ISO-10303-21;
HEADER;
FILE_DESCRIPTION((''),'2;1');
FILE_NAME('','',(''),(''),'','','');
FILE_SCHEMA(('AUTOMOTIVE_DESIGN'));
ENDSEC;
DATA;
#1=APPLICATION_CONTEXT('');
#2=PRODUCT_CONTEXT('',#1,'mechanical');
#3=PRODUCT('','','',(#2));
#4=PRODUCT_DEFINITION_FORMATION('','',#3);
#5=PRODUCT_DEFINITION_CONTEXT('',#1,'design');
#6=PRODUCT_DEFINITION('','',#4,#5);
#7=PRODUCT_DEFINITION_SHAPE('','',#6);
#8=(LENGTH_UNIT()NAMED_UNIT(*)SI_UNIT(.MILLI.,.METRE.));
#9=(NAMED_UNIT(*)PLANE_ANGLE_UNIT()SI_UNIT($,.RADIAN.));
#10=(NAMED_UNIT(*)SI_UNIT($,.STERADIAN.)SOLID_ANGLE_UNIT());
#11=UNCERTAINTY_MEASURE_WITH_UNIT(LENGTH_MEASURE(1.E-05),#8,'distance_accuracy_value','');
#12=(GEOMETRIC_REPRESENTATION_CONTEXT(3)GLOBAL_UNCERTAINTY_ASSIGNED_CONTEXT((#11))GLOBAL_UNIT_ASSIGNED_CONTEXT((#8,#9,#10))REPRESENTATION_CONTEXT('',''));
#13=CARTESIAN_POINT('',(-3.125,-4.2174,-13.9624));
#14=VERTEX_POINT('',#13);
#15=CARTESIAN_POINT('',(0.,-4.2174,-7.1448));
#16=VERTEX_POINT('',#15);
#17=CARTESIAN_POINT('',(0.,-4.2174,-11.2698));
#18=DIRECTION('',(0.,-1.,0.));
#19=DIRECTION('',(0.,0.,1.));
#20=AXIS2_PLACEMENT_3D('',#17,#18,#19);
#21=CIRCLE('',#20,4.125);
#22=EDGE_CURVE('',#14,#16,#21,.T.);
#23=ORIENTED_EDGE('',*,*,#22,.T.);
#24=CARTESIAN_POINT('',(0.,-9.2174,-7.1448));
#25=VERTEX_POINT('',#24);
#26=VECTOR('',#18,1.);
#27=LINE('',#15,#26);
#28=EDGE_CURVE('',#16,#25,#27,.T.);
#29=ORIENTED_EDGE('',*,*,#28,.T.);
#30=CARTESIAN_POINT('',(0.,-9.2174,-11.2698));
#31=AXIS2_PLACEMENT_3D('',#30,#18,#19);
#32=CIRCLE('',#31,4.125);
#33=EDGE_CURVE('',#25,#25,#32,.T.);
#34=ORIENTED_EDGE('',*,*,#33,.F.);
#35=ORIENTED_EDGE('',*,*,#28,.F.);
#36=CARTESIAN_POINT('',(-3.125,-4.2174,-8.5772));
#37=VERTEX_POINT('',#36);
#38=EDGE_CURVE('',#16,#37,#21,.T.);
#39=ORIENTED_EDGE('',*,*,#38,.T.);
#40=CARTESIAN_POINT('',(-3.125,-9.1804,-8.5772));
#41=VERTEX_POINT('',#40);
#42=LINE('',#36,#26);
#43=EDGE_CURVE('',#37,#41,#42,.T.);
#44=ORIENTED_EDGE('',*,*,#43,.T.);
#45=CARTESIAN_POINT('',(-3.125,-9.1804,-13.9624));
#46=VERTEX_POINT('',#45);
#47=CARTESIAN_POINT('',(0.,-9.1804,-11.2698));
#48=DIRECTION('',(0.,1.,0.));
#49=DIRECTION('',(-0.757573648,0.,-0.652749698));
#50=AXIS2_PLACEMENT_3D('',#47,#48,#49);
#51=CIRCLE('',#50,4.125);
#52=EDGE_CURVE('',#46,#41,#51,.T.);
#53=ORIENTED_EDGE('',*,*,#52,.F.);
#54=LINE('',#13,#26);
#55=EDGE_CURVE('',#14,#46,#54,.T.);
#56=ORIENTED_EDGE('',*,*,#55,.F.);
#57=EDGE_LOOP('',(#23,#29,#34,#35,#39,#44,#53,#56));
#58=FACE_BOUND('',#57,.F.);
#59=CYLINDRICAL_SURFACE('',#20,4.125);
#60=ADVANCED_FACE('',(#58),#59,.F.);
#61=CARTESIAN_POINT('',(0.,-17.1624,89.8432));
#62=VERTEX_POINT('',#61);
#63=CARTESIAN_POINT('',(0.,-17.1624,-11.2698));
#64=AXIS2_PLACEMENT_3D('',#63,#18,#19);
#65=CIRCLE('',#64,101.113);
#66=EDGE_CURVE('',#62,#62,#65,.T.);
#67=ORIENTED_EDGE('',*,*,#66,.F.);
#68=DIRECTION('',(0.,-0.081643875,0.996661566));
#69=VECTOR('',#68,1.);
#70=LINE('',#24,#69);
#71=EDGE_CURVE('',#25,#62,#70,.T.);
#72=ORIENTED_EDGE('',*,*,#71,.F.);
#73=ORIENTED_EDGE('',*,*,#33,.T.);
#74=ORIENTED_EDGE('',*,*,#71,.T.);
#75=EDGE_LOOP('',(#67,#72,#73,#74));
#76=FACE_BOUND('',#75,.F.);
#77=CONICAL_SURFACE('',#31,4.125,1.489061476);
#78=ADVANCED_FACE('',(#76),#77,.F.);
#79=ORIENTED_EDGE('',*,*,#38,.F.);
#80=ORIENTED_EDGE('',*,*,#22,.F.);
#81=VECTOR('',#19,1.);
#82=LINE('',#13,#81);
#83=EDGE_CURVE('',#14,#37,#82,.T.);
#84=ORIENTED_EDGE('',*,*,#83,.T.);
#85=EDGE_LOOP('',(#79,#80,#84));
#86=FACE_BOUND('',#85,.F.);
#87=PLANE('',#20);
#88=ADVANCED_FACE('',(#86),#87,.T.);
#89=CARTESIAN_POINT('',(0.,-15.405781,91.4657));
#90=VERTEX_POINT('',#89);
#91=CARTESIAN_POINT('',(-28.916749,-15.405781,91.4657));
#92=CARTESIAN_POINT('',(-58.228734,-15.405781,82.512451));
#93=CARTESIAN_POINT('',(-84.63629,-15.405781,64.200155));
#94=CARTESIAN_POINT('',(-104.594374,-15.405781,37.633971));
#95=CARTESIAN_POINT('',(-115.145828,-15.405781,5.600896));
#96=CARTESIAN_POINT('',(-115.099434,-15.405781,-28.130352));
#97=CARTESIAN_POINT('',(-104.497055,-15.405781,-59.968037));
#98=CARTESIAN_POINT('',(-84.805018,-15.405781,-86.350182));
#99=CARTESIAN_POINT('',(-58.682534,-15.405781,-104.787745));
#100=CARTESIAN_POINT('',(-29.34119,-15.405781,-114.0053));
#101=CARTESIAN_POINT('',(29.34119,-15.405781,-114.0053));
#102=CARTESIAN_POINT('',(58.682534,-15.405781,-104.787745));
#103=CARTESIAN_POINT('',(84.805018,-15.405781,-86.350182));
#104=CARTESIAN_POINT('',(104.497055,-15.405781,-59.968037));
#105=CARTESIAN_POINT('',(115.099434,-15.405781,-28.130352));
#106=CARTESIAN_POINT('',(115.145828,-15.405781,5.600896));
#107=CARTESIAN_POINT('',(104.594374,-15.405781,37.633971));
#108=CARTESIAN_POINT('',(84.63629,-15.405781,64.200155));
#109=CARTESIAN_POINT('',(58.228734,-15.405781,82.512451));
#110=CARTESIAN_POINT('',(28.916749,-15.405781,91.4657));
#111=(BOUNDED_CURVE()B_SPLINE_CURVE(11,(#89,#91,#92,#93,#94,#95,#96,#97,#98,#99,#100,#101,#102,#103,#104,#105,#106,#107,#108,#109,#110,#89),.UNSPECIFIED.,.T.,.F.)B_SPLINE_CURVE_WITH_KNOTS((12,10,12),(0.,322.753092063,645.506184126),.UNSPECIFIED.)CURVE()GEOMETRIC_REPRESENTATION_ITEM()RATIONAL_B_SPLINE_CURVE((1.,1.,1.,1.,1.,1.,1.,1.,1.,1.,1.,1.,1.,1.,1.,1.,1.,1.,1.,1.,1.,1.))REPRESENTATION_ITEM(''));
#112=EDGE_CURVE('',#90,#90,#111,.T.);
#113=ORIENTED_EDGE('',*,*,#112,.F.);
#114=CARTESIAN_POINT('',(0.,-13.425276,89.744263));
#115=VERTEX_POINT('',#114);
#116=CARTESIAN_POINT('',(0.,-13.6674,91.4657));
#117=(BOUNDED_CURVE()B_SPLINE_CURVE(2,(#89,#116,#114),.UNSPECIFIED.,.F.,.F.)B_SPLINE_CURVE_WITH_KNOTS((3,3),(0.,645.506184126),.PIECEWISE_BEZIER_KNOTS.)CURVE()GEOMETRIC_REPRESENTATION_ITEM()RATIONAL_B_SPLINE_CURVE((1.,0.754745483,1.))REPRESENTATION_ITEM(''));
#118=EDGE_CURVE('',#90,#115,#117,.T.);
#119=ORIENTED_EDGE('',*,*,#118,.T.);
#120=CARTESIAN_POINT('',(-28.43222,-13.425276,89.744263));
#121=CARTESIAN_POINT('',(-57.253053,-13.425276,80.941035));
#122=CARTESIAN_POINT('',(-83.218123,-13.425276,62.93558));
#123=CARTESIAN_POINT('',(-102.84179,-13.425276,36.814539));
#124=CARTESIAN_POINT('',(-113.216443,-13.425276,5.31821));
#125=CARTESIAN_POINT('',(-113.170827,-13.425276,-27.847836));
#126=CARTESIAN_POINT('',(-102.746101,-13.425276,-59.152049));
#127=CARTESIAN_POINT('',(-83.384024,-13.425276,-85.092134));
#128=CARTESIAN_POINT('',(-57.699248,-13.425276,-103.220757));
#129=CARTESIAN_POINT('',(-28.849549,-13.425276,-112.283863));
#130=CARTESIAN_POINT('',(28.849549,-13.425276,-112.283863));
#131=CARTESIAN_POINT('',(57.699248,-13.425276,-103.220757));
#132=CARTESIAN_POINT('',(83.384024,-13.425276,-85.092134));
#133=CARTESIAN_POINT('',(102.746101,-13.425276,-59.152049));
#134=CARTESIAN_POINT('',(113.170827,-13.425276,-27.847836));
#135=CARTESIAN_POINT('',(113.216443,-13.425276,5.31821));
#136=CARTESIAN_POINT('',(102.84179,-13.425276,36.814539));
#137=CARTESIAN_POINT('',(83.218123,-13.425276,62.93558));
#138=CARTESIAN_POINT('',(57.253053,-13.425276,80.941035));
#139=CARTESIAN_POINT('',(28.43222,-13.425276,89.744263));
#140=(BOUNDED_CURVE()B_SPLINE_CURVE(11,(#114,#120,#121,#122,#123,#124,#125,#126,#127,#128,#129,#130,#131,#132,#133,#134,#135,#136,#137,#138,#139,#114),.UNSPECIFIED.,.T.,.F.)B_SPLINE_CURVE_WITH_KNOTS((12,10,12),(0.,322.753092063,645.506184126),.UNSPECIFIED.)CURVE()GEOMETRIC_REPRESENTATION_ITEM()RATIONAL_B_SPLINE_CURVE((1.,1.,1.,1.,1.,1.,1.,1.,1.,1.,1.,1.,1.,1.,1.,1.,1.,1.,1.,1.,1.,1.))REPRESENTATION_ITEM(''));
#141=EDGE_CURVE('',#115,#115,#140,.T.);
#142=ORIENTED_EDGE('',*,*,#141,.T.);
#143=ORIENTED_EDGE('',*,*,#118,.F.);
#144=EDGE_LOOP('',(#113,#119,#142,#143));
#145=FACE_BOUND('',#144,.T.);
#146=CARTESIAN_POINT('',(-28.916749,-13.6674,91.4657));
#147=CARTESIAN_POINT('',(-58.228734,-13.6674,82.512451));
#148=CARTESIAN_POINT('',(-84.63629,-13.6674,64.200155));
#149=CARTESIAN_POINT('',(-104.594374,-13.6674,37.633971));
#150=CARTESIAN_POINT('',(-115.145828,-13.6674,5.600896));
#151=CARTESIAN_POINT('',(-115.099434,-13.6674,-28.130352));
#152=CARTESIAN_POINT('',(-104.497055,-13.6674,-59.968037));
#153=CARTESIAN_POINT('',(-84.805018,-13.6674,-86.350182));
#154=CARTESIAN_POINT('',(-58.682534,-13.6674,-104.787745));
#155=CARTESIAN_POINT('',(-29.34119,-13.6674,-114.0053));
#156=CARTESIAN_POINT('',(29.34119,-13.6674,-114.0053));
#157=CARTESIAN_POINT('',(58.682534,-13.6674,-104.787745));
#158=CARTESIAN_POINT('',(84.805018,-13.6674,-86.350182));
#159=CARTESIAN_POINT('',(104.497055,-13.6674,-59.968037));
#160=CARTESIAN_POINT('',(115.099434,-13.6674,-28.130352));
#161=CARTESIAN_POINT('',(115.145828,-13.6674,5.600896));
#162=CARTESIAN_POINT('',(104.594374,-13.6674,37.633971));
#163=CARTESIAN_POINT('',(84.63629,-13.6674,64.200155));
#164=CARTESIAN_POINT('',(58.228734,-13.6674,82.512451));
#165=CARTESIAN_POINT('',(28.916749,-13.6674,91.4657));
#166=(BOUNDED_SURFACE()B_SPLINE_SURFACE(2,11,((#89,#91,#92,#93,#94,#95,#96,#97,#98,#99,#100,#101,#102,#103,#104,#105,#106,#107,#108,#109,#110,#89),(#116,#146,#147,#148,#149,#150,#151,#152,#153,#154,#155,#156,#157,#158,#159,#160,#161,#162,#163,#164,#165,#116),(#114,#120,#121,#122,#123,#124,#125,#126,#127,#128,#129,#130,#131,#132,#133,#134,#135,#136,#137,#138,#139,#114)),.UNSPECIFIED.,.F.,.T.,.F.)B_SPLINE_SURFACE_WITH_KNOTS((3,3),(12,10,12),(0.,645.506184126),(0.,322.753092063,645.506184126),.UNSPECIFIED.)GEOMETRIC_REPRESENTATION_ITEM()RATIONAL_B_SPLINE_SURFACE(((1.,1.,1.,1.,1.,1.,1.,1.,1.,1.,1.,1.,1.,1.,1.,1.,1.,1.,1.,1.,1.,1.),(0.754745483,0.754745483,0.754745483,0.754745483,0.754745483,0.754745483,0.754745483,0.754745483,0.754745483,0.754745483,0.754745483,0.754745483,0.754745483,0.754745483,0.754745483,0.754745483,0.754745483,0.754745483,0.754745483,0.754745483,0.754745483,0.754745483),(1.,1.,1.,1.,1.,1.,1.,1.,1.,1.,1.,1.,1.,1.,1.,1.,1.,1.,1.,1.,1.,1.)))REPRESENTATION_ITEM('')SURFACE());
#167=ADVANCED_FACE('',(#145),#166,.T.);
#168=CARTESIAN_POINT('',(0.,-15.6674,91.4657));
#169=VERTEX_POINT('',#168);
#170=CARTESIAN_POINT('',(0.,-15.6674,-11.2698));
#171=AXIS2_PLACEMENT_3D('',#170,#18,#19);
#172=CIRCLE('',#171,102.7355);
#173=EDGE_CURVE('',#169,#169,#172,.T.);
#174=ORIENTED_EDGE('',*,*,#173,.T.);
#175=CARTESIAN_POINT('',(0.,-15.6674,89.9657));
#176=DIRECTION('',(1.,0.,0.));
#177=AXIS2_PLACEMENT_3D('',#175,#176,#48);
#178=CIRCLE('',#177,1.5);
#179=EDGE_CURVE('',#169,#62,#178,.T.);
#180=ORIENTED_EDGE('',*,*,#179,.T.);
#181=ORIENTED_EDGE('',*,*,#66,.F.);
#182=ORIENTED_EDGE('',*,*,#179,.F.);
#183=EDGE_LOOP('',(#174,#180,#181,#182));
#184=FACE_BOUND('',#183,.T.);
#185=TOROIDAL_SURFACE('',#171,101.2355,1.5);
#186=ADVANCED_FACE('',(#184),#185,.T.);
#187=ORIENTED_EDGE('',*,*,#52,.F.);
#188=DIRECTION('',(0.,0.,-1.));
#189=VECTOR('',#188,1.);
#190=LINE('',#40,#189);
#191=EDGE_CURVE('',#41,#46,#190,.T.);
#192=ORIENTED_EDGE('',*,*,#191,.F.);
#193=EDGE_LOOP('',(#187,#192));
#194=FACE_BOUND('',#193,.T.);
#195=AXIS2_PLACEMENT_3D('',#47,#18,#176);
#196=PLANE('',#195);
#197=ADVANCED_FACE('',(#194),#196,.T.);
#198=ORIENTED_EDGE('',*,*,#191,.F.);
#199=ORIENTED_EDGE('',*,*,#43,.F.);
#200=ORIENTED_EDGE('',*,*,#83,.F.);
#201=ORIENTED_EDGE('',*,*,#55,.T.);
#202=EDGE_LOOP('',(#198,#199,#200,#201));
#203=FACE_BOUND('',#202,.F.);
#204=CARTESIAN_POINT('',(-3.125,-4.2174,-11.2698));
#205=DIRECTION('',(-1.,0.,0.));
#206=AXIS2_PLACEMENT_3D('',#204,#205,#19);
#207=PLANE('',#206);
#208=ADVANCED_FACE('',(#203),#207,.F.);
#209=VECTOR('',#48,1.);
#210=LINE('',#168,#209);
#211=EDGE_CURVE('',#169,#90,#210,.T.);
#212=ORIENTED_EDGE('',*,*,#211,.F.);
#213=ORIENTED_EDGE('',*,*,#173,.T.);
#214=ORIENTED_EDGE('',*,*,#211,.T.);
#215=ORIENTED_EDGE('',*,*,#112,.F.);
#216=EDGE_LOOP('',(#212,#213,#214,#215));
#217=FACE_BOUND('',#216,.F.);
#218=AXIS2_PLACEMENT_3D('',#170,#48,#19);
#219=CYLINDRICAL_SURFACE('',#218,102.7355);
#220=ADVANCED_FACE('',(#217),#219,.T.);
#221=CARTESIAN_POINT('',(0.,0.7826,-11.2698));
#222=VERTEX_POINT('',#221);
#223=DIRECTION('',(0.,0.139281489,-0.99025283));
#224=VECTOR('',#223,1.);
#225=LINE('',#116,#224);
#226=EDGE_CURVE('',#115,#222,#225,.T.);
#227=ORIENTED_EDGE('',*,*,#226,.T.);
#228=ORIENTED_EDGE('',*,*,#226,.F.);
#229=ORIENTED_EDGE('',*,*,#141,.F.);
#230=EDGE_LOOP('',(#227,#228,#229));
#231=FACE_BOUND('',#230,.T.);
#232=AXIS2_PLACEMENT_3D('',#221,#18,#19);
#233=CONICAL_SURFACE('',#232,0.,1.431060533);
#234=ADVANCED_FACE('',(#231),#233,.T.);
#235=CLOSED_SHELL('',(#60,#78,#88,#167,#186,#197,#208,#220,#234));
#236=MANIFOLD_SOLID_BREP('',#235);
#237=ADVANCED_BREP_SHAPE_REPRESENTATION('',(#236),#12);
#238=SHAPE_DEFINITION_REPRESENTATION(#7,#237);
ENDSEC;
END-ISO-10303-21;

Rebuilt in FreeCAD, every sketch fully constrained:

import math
import FreeCAD as App
import Part
import Sketcher

V = App.Vector
Q = App.Units.Quantity


def edges_at(feature, points):
    """Names of the edges that pass closest to the given points."""
    edges = feature.Shape.Edges
    near = lambda p: min(range(len(edges)), key=lambda i: edges[i].distToShape(Part.Vertex(*p))[0])
    return sorted({f"Edge{near(p) + 1}" for p in points})

doc = App.newDocument("Part")
body = doc.addObject("PartDesign::Body", "Body")

sketch1 = body.newObject("Sketcher::SketchObject", "Sketch")
sketch1.AttachmentSupport = (doc.getObject("YZ_Plane"), [""])
sketch1.MapMode = "FlatFace"
sketch1.addGeometry([
    Part.LineSegment(V(-4.2174, -11.2698, 0), V(0.7826, -11.2698, 0)),
    Part.LineSegment(V(0.7826, -11.2698, 0), V(-13.6674, 91.4657, 0)),
    Part.LineSegment(V(-13.6674, 91.4657, 0), V(-15.6674, 91.4657, 0)),
    Part.ArcOfCircle(Part.Circle(V(-15.6674, 89.9657, 0), V(0, 0, 1), 1.5), math.radians(90), math.radians(184.68434)),
    Part.LineSegment(V(-17.1624, 89.8432, 0), V(-9.2174, -7.1448, 0)),
    Part.LineSegment(V(-9.2174, -7.1448, 0), V(-4.2174, -7.1448, 0)),
    Part.LineSegment(V(-4.2174, -7.1448, 0), V(-4.2174, -11.2698, 0)),
], False)
sketch1.addGeometry(Part.LineSegment(V(0.7826, -11.2698, 0), V(-17.1624, -11.2698, 0)), True)
sketch1.addConstraint([
    Sketcher.Constraint("Coincident", 0, 2, 1, 1),
    Sketcher.Constraint("Coincident", 1, 2, 2, 1),
    Sketcher.Constraint("Tangent", 2, 2, 3, 1),
    Sketcher.Constraint("Tangent", 3, 2, 4, 1),
    Sketcher.Constraint("Coincident", 4, 2, 5, 1),
    Sketcher.Constraint("Coincident", 5, 2, 6, 1),
    Sketcher.Constraint("Coincident", 6, 2, 0, 1),
    Sketcher.Constraint("Horizontal", 0),
    Sketcher.Constraint("Horizontal", 2),
    Sketcher.Constraint("Horizontal", 5),
    Sketcher.Constraint("Vertical", 6),
    Sketcher.Constraint("Horizontal", 7),
    Sketcher.Constraint("Coincident", 7, 1, 0, 2),
    Sketcher.Constraint("Vertical", 3, 2, 7, 2),
    Sketcher.Constraint("Equal", 0, 5),
    Sketcher.Constraint("Radius", 3, Q("1.5 mm")),
    Sketcher.Constraint("DistanceX", 0, 1, 0, 2, Q("5 mm")),
    Sketcher.Constraint("DistanceX", 2, 2, 2, 1, Q("2 mm")),
    Sketcher.Constraint("DistanceX", 7, 2, 7, 1, Q("17.945 mm")),
    Sketcher.Constraint("DistanceY", 6, 2, 6, 1, Q("4.125 mm")),
    Sketcher.Constraint("DistanceY", 0, 2, 3, 2, Q("101.113 mm")),
    Sketcher.Constraint("DistanceX", 3, 3, -1, 1, Q("15.6674 mm")),
    Sketcher.Constraint("DistanceY", -1, 1, 3, 3, Q("89.9657 mm")),
])
revolution = body.newObject("PartDesign::Revolution", "Revolution")
revolution.Profile = sketch1
revolution.ReferenceAxis = (sketch1, ["Axis0"])
revolution.Angle = 360

sketch2 = body.newObject("Sketcher::SketchObject", "Sketch001")
sketch2.AttachmentSupport = (doc.getObject("XZ_Plane"), [""])
sketch2.MapMode = "FlatFace"
sketch2.AttachmentOffset = App.Placement(V(0, 0, 4.2174), App.Rotation())
sketch2.addGeometry([
    Part.ArcOfCircle(Part.Circle(V(0, -11.2698, 0), V(0, 0, 1), 4.125), math.radians(139.25076), math.radians(220.74924)),
    Part.LineSegment(V(-3.125, -8.5772, 0), V(-3.125, -13.9624, 0)),
], False)
sketch2.addConstraint([
    Sketcher.Constraint("Coincident", 0, 1, 1, 1),
    Sketcher.Constraint("Coincident", 1, 2, 0, 2),
    Sketcher.Constraint("Vertical", 1),
    Sketcher.Constraint("PointOnObject", 0, 3, -2),
    Sketcher.Constraint("Radius", 0, Q("4.125 mm")),
    Sketcher.Constraint("DistanceY", 1, 2, 1, 1, Q("5.3852 mm")),
    Sketcher.Constraint("DistanceY", 0, 3, -1, 1, Q("11.2698 mm")),
])
pad1 = body.newObject("PartDesign::Pad", "Pad")
pad1.Profile = sketch2
pad1.Length = 4.963
doc.recompute()

fillet = body.newObject("PartDesign::Fillet", "Fillet")
fillet.Base = (pad1, edges_at(pad1, [(0, -13.667, -114.005)]))
fillet.Radius = 2

doc.recompute()
